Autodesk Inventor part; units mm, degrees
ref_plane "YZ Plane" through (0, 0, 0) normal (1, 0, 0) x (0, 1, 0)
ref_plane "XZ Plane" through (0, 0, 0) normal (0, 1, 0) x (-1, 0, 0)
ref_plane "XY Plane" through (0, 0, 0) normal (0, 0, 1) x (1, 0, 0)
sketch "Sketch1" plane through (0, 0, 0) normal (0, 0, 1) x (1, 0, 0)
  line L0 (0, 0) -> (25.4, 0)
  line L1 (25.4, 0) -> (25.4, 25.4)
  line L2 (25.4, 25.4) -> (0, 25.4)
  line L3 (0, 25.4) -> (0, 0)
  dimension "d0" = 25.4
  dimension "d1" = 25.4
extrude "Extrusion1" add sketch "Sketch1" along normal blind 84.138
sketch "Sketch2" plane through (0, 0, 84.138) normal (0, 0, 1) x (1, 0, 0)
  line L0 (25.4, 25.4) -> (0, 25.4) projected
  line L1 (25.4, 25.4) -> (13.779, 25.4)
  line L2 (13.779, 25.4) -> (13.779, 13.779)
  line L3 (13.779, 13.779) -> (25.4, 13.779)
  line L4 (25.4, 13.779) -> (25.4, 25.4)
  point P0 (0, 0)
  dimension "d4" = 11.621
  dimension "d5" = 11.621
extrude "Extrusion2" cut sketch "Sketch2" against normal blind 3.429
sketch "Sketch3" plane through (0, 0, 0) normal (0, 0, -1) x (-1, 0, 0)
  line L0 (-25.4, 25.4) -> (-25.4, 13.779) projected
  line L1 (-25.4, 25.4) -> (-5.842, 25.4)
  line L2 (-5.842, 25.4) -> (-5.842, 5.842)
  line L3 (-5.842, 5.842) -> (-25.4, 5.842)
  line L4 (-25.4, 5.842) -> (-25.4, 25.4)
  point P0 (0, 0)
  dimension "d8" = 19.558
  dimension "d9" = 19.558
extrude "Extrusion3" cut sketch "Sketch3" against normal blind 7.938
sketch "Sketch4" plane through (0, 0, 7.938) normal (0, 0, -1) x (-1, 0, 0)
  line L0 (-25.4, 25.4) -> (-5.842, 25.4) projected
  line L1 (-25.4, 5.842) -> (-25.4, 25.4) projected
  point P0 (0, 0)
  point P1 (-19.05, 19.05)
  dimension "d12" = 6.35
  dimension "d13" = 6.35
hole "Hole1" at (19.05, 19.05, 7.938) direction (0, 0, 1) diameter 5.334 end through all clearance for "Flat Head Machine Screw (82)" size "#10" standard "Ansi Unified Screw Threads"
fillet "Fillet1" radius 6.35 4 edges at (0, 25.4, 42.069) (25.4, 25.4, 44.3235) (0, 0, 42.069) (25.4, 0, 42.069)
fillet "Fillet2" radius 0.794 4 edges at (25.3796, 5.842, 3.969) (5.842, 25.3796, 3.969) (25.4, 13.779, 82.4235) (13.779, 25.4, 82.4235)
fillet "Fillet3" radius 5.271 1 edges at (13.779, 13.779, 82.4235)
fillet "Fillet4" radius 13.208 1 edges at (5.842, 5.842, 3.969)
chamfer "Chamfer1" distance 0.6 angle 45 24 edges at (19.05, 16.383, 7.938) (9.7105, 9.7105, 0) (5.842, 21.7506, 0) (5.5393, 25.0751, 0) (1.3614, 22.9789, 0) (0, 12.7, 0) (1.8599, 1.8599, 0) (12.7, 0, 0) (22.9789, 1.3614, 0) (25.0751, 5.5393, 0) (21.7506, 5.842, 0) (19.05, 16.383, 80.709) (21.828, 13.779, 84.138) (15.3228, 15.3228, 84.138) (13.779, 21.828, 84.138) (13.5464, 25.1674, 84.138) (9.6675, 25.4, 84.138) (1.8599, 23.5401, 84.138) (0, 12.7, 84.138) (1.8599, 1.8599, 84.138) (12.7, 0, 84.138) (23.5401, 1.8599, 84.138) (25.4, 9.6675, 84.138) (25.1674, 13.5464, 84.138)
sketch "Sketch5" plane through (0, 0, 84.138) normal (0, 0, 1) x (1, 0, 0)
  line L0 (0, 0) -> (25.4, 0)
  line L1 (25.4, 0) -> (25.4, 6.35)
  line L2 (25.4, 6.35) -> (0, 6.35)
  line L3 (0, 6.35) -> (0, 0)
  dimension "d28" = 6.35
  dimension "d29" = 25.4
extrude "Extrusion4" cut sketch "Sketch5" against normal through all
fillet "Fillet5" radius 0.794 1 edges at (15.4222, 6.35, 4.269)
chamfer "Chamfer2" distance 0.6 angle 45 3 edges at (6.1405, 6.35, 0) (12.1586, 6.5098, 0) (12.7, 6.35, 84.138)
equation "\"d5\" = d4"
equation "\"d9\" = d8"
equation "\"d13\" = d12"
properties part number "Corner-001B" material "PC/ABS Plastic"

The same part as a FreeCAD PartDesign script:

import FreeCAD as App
import Part
import Sketcher
from FreeCAD import Vector
Q = App.Units.Quantity


def edges_at(feature, points):
    """Names of the edges that pass closest to the given points."""
    edges = feature.Shape.Edges
    near = lambda p: min(range(len(edges)), key=lambda i: edges[i].distToShape(Part.Vertex(*p))[0])
    return sorted({f"Edge{near(p) + 1}" for p in points})


def add_polygon(sketch, points):
    """Adds a closed chain of lines whose ends are joined by coincident constraints."""
    first, n = sketch.GeometryCount, len(points)
    for a, b in zip(points, points[1:] + points[:1]):
        sketch.addGeometry(Part.LineSegment(App.Vector(*a, 0), App.Vector(*b, 0)), False)
    for i in range(n):
        sketch.addConstraint(Sketcher.Constraint("Coincident", first + i, 2, first + (i + 1) % n, 1))

doc = App.newDocument("Part")
params = doc.addObject("Spreadsheet::Sheet", "Params")
for row, (alias, value) in enumerate([
    ("sketch1_width", "1 in"),
    ("pad1_length", "84.138 mm"),
    ("pocket1_length", "0.135 in"),
    ("sketch3_width", "0.77 in"),
    ("pocket2_length", "7.938 mm"),
    ("sketch4_diameter", "0.21 in"),
    ("hole_diameter", "0.21 in"),
    ("fillet_radius", "0.25 in"),
    ("fillet2_radius", "0.794 mm"),
    ("fillet3_radius", "5.271 mm"),
    ("fillet4_radius", "0.52 in"),
    ("chamfer_size", "0.6 mm"),
    ("sketch5_width", "1 in"),
    ("sketch5_height", "0.25 in"),
    ("fillet5_radius", "0.794 mm"),
    ("chamfer2_size", "0.6 mm"),
], start=1):
    params.set(f"A{row}", alias)
    params.set(f"B{row}", "=" + value)
    params.setAlias(f"B{row}", alias)

body = doc.addObject("PartDesign::Body", "Body")

sketch1 = body.newObject("Sketcher::SketchObject", "Sketch")
sketch1.AttachmentSupport = (doc.getObject("XY_Plane"), [""])
sketch1.MapMode = "FlatFace"
add_polygon(sketch1, [(0, 25.4), (0, 0), (25.4, 0), (25.4, 25.4)])
sketch1.addConstraint([
    Sketcher.Constraint("Vertical", 0),
    Sketcher.Constraint("Horizontal", 1),
    Sketcher.Constraint("Vertical", 2),
    Sketcher.Constraint("Horizontal", 3),
    Sketcher.Constraint("Coincident", 0, 2, -1, 1),
    Sketcher.Constraint("Equal", 3, 0),
    Sketcher.Constraint("DistanceX", 1, 1, 1, 2, Q("1 in")),
])
sketch1.setExpression("Constraints[10]", "Params.sketch1_width")
pad1 = body.newObject("PartDesign::Pad", "Pad")
pad1.Profile = sketch1
pad1.setExpression("Length", "Params.pad1_length")

sketch2 = body.newObject("Sketcher::SketchObject", "Sketch001")
sketch2.AttachmentSupport = (doc.getObject("XY_Plane"), [""])
sketch2.MapMode = "FlatFace"
sketch2.AttachmentOffset = App.Placement(Vector(0, 0, 84.138), App.Rotation())
add_polygon(sketch2, [(25.4, 13.779), (25.4, 25.4), (13.779, 25.4), (13.779, 13.779)])
sketch2.addConstraint([
    Sketcher.Constraint("Vertical", 0),
    Sketcher.Constraint("Horizontal", 1),
    Sketcher.Constraint("Vertical", 2),
    Sketcher.Constraint("Horizontal", 3),
    Sketcher.Constraint("Equal", 3, 0),
    Sketcher.Constraint("DistanceX", -1, 1, 0, 2, Q("1 in")),
    Sketcher.Constraint("DistanceY", -1, 1, 0, 2, Q("1 in")),
    Sketcher.Constraint("DistanceX", 1, 2, 1, 1, 11.621),
])
pocket1 = body.newObject("PartDesign::Pocket", "Pocket")
pocket1.Profile = sketch2
pocket1.setExpression("Length", "Params.pocket1_length")

sketch3 = body.newObject("Sketcher::SketchObject", "Sketch002")
sketch3.AttachmentSupport = (doc.getObject("XY_Plane"), [""])
sketch3.MapMode = "FlatFace"
add_polygon(sketch3, [(5.842, 25.4), (25.4, 25.4), (25.4, 5.842), (5.842, 5.842)])
sketch3.addConstraint([
    Sketcher.Constraint("Horizontal", 0),
    Sketcher.Constraint("Vertical", 1),
    Sketcher.Constraint("Horizontal", 2),
    Sketcher.Constraint("Vertical", 3),
    Sketcher.Constraint("Equal", 2, 1),
    Sketcher.Constraint("DistanceX", 0, 1, 0, 2, Q("0.77 in")),
    Sketcher.Constraint("DistanceX", -1, 1, 0, 2, Q("1 in")),
    Sketcher.Constraint("DistanceY", -1, 1, 0, 2, Q("1 in")),
])
sketch3.setExpression("Constraints[9]", "Params.sketch3_width")
pocket2 = body.newObject("PartDesign::Pocket", "Pocket001")
pocket2.Profile = sketch3
pocket2.setExpression("Length", "Params.pocket2_length")
pocket2.Reversed = True

sketch4 = body.newObject("Sketcher::SketchObject", "Sketch003")
sketch4.AttachmentSupport = (doc.getObject("XY_Plane"), [""])
sketch4.MapMode = "FlatFace"
sketch4.AttachmentOffset = App.Placement(Vector(0, 0, 7.938), App.Rotation())
sketch4.addGeometry(Part.Circle(Vector(19.05, 19.05, 0), Vector(0, 0, 1), 2.667), False)
sketch4.addConstraint([
    Sketcher.Constraint("Diameter", 0, Q("0.21 in")),
    Sketcher.Constraint("DistanceX", -1, 1, 0, 3, Q("0.75 in")),
    Sketcher.Constraint("DistanceY", -1, 1, 0, 3, Q("0.75 in")),
])
sketch4.setExpression("Constraints[0]", "Params.sketch4_diameter")
doc.recompute()
hole = body.newObject("PartDesign::Hole", "Hole")
hole.Profile = sketch4
hole.ThreadType = "None"
hole.setExpression("Diameter", "Params.hole_diameter")
hole.DepthType = "ThroughAll"
hole.Reversed = True
doc.recompute()

fillet = body.newObject("PartDesign::Fillet", "Fillet")
fillet.Base = (hole, edges_at(hole, [
    (0, 25.4, 42.069),
    (25.4, 25.4, 44.324),
    (0, 0, 42.069),
    (25.4, 0, 42.069),
]))
fillet.setExpression("Radius", "Params.fillet_radius")
doc.recompute()

fillet2 = body.newObject("PartDesign::Fillet", "Fillet001")
fillet2.Base = (fillet, edges_at(fillet, [
    (25.38, 5.842, 3.969),
    (5.842, 25.38, 3.969),
    (25.4, 13.779, 82.424),
    (13.779, 25.4, 82.424),
]))
fillet2.setExpression("Radius", "Params.fillet2_radius")
doc.recompute()

fillet3 = body.newObject("PartDesign::Fillet", "Fillet002")
fillet3.Base = (fillet2, edges_at(fillet2, [(13.779, 13.779, 82.424)]))
fillet3.setExpression("Radius", "Params.fillet3_radius")
doc.recompute()

fillet4 = body.newObject("PartDesign::Fillet", "Fillet003")
fillet4.Base = (fillet3, edges_at(fillet3, [(5.842, 5.842, 3.969)]))
fillet4.setExpression("Radius", "Params.fillet4_radius")
doc.recompute()

chamfer = body.newObject("PartDesign::Chamfer", "Chamfer")
chamfer.Base = (fillet4, edges_at(fillet4, [
    (19.05, 16.383, 7.938),
    (9.71, 9.71, 0),
    (5.842, 21.751, 0),
    (5.539, 25.075, 0),
    (1.361, 22.979, 0),
    (0, 12.7, 0),
    (1.86, 1.86, 0),
    (12.7, 0, 0),
    (22.979, 1.361, 0),
    (25.075, 5.539, 0),
    (21.751, 5.842, 0),
    (19.05, 16.383, 80.709),
    (21.828, 13.779, 84.138),
    (15.323, 15.323, 84.138),
    (13.779, 21.828, 84.138),
    (13.546, 25.167, 84.138),
    (9.668, 25.4, 84.138),
    (1.86, 23.54, 84.138),
    (0, 12.7, 84.138),
    (1.86, 1.86, 84.138),
    (12.7, 0, 84.138),
    (23.54, 1.86, 84.138),
    (25.4, 9.668, 84.138),
    (25.167, 13.546, 84.138),
]))
chamfer.setExpression("Size", "Params.chamfer_size")

sketch5 = body.newObject("Sketcher::SketchObject", "Sketch004")
sketch5.AttachmentSupport = (doc.getObject("XY_Plane"), [""])
sketch5.MapMode = "FlatFace"
sketch5.AttachmentOffset = App.Placement(Vector(0, 0, 84.138), App.Rotation())
add_polygon(sketch5, [(0, 6.35), (0, 0), (25.4, 0), (25.4, 6.35)])
sketch5.addConstraint([
    Sketcher.Constraint("Vertical", 0),
    Sketcher.Constraint("Horizontal", 1),
    Sketcher.Constraint("Vertical", 2),
    Sketcher.Constraint("Horizontal", 3),
    Sketcher.Constraint("Coincident", 0, 2, -1, 1),
    Sketcher.Constraint("DistanceX", 1, 1, 1, 2, Q("1 in")),
    Sketcher.Constraint("DistanceY", 0, 2, 0, 1, Q("0.25 in")),
])
sketch5.setExpression("Constraints[9]", "Params.sketch5_width")
sketch5.setExpression("Constraints[10]", "Params.sketch5_height")
pocket3 = body.newObject("PartDesign::Pocket", "Pocket002")
pocket3.Profile = sketch5
pocket3.Type = "ThroughAll"
doc.recompute()

fillet5 = body.newObject("PartDesign::Fillet", "Fillet004")
fillet5.Base = (pocket3, edges_at(pocket3, [(15.422, 6.35, 4.269)]))
fillet5.setExpression("Radius", "Params.fillet5_radius")
doc.recompute()

chamfer2 = body.newObject("PartDesign::Chamfer", "Chamfer001")
chamfer2.Base = (fillet5, edges_at(fillet5, [(6.141, 6.35, 0), (12.159, 6.51, 0), (12.7, 6.35, 84.138)]))
chamfer2.setExpression("Size", "Params.chamfer2_size")

doc.recompute()
